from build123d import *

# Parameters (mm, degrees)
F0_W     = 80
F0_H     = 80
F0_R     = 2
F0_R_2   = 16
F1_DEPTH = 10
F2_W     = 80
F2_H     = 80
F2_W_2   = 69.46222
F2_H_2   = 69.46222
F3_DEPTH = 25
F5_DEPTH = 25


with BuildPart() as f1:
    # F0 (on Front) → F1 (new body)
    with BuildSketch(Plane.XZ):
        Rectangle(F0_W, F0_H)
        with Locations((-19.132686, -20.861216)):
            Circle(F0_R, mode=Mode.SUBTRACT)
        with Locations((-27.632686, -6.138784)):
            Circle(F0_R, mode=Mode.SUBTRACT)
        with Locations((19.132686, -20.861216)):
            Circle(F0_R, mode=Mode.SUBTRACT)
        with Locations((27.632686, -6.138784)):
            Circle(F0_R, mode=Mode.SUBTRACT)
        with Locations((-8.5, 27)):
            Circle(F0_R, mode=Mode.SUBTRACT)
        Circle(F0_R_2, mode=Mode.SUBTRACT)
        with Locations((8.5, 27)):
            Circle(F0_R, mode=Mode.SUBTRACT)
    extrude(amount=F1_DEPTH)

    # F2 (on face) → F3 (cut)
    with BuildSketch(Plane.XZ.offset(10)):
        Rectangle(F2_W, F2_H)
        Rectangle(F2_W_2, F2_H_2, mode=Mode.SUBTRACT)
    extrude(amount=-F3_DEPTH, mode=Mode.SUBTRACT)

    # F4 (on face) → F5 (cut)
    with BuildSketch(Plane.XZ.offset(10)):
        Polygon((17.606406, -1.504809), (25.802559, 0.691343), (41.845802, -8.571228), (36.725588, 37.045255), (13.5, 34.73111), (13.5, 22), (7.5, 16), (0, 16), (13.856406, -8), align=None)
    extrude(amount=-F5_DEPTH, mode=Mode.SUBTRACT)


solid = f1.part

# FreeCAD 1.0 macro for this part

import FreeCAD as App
import Part
import Sketcher
Q = App.Units.Quantity


def add_polygon(sketch, points):
    """Adds a closed chain of lines whose ends are joined by coincident constraints."""
    first, n = sketch.GeometryCount, len(points)
    for a, b in zip(points, points[1:] + points[:1]):
        sketch.addGeometry(Part.LineSegment(App.Vector(*a, 0), App.Vector(*b, 0)), False)
    for i in range(n):
        sketch.addConstraint(Sketcher.Constraint("Coincident", first + i, 2, first + (i + 1) % n, 1))

doc = App.newDocument("Part")
body = doc.addObject("PartDesign::Body", "Body")

sketch1 = doc.addObject("Sketcher::SketchObject", "Sketch")
body.addObject(sketch1)
sketch1.AttachmentSupport = (doc.XZ_Plane, [""])
sketch1.MapMode = "FlatFace"
add_polygon(sketch1, [(-40, 40), (-40, -40), (40, -40), (40, 40)])
sketch1.addGeometry(Part.Circle(App.Vector(-19.1, -20.9, 0), App.Vector(0, 0, 1), 2), False)
sketch1.addGeometry(Part.Circle(App.Vector(-27.6, -6.1, 0), App.Vector(0, 0, 1), 2), False)
sketch1.addGeometry(Part.Circle(App.Vector(19.1, -20.9, 0), App.Vector(0, 0, 1), 2), False)
sketch1.addGeometry(Part.Circle(App.Vector(0, 0, 0), App.Vector(0, 0, 1), 16), False)
sketch1.addGeometry(Part.Circle(App.Vector(27.6, -6.1, 0), App.Vector(0, 0, 1), 2), False)
sketch1.addGeometry(Part.Circle(App.Vector(-8.5, 27, 0), App.Vector(0, 0, 1), 2), False)
sketch1.addGeometry(Part.Circle(App.Vector(8.5, 27, 0), App.Vector(0, 0, 1), 2), False)
sketch1.addConstraint(Sketcher.Constraint("Vertical", 0))
sketch1.addConstraint(Sketcher.Constraint("Horizontal", 1))
sketch1.addConstraint(Sketcher.Constraint("Vertical", 2))
sketch1.addConstraint(Sketcher.Constraint("Horizontal", 3))
sketch1.addConstraint(Sketcher.Constraint("Coincident", 7, 3, -1, 1))
sketch1.addConstraint(Sketcher.Constraint("Equal", 4, 5))
sketch1.addConstraint(Sketcher.Constraint("Equal", 5, 6))
sketch1.addConstraint(Sketcher.Constraint("Equal", 6, 8))
sketch1.addConstraint(Sketcher.Constraint("Equal", 8, 9))
sketch1.addConstraint(Sketcher.Constraint("Equal", 9, 10))
sketch1.addConstraint(Sketcher.Constraint("Symmetric", 0, 2, 2, 2, -1, 1))
sketch1.addConstraint(Sketcher.Constraint("Symmetric", 4, 3, 6, 3, -2))
sketch1.addConstraint(Sketcher.Constraint("Symmetric", 5, 3, 8, 3, -2))
sketch1.addConstraint(Sketcher.Constraint("Symmetric", 9, 3, 10, 3, -2))
sketch1.addConstraint(Sketcher.Constraint("Equal", 3, 0))
sketch1.addConstraint(Sketcher.Constraint("Diameter", 4, Q("4 mm")))
sketch1.addConstraint(Sketcher.Constraint("Diameter", 7, Q("32 mm")))
sketch1.addConstraint(Sketcher.Constraint("DistanceX", 1, 1, 1, 2, Q("80 mm")))
sketch1.addConstraint(Sketcher.Constraint("DistanceY", -1, 1, 9, 3, Q("27 mm")))
sketch1.addConstraint(Sketcher.Constraint("DistanceX", 9, 3, 10, 3, Q("17 mm")))
sketch1.addConstraint(Sketcher.Constraint("DistanceX", 5, 3, 4, 3, Q("8.5 mm")))
sketch1.addConstraint(Sketcher.Constraint("DistanceY", 4, 3, 5, 3, Q("14.722432 mm")))
sketch1.addConstraint(Sketcher.Constraint("DistanceX", 4, 3, -1, 1, Q("19.132686 mm")))
sketch1.addConstraint(Sketcher.Constraint("DistanceY", 4, 3, -1, 1, Q("20.861216 mm")))
pad1 = doc.addObject("PartDesign::Pad", "Pad")
body.addObject(pad1)
pad1.Profile = sketch1
pad1.Length = 10

sketch2 = doc.addObject("Sketcher::SketchObject", "Sketch001")
body.addObject(sketch2)
sketch2.AttachmentSupport = (doc.XZ_Plane, [""])
sketch2.MapMode = "FlatFace"
sketch2.AttachmentOffset = App.Placement(App.Vector(0, 0, 10), App.Rotation())
add_polygon(sketch2, [(-40, 40), (-40, -40), (40, -40), (40, 40)])
add_polygon(sketch2, [(35, -35), (-35, -35), (-35, 35), (35, 35)])
sketch2.addConstraint(Sketcher.Constraint("Vertical", 0))
sketch2.addConstraint(Sketcher.Constraint("Horizontal", 1))
sketch2.addConstraint(Sketcher.Constraint("Vertical", 2))
sketch2.addConstraint(Sketcher.Constraint("Horizontal", 3))
sketch2.addConstraint(Sketcher.Constraint("Horizontal", 4))
sketch2.addConstraint(Sketcher.Constraint("Vertical", 5))
sketch2.addConstraint(Sketcher.Constraint("Horizontal", 6))
sketch2.addConstraint(Sketcher.Constraint("Vertical", 7))
sketch2.addConstraint(Sketcher.Constraint("Symmetric", 0, 2, 2, 2, -1, 1))
sketch2.addConstraint(Sketcher.Constraint("Symmetric", 4, 2, 6, 2, -1, 1))
sketch2.addConstraint(Sketcher.Constraint("Equal", 3, 0))
sketch2.addConstraint(Sketcher.Constraint("Equal", 6, 5))
sketch2.addConstraint(Sketcher.Constraint("DistanceX", 1, 1, 1, 2, Q("80 mm")))
sketch2.addConstraint(Sketcher.Constraint("DistanceX", 4, 2, 4, 1, Q("69.46222 mm")))
pocket1 = doc.addObject("PartDesign::Pocket", "Pocket")
body.addObject(pocket1)
pocket1.Profile = sketch2
pocket1.Length = 25

sketch3 = doc.addObject("Sketcher::SketchObject", "Sketch002")
body.addObject(sketch3)
sketch3.AttachmentSupport = (doc.XZ_Plane, [""])
sketch3.MapMode = "FlatFace"
sketch3.AttachmentOffset = App.Placement(App.Vector(0, 0, 10), App.Rotation())
add_polygon(sketch3, [(18, -2), (26, 1), (42, -9), (37, 37), (14, 35), (14, 22), (8, 16), (0, 16), (14, -8)])
sketch3.addConstraint(Sketcher.Constraint("Vertical", 4))
sketch3.addConstraint(Sketcher.Constraint("Horizontal", 6))
sketch3.addConstraint(Sketcher.Constraint("PointOnObject", 6, 2, -2))
sketch3.addConstraint(Sketcher.Constraint("Perpendicular", 1, 8))
sketch3.addConstraint(Sketcher.Constraint("Equal", 0, 5))
sketch3.addConstraint(Sketcher.Constraint("Angle", 0, Q("14.999996 deg")))
sketch3.addConstraint(Sketcher.Constraint("Angle", 1, Q("-30.000001 deg")))
sketch3.addConstraint(Sketcher.Constraint("Angle", 5, Q("-135 deg")))
sketch3.addConstraint(Sketcher.Constraint("Angle", 7, Q("-60.000001 deg")))
sketch3.addConstraint(Sketcher.Constraint("DistanceX", 6, 2, 6, 1, Q("7.5 mm")))
sketch3.addConstraint(Sketcher.Constraint("DistanceY", -1, 1, 4, 2, Q("22 mm")))
sketch3.addConstraint(Sketcher.Constraint("DistanceY", -1, 1, 5, 2, Q("16 mm")))
sketch3.addConstraint(Sketcher.Constraint("DistanceY", 7, 2, -1, 1, Q("8 mm")))
sketch3.addConstraint(Sketcher.Constraint("Distance", 8, Q("7.5 mm")))
sketch3.addConstraint(Sketcher.Constraint("DistanceY", 4, 2, 4, 1, Q("12.73111 mm")))
sketch3.addConstraint(Sketcher.Constraint("DistanceX", 3, 2, 1, 2, Q("28.345802 mm")))
sketch3.addConstraint(Sketcher.Constraint("Distance", 3, Q("23.340591 mm")))
sketch3.addConstraint(Sketcher.Constraint("DistanceX", -1, 1, 2, 2, Q("36.725588 mm")))
pocket2 = doc.addObject("PartDesign::Pocket", "Pocket001")
body.addObject(pocket2)
pocket2.Profile = sketch3
pocket2.Length = 25

doc.recompute()
